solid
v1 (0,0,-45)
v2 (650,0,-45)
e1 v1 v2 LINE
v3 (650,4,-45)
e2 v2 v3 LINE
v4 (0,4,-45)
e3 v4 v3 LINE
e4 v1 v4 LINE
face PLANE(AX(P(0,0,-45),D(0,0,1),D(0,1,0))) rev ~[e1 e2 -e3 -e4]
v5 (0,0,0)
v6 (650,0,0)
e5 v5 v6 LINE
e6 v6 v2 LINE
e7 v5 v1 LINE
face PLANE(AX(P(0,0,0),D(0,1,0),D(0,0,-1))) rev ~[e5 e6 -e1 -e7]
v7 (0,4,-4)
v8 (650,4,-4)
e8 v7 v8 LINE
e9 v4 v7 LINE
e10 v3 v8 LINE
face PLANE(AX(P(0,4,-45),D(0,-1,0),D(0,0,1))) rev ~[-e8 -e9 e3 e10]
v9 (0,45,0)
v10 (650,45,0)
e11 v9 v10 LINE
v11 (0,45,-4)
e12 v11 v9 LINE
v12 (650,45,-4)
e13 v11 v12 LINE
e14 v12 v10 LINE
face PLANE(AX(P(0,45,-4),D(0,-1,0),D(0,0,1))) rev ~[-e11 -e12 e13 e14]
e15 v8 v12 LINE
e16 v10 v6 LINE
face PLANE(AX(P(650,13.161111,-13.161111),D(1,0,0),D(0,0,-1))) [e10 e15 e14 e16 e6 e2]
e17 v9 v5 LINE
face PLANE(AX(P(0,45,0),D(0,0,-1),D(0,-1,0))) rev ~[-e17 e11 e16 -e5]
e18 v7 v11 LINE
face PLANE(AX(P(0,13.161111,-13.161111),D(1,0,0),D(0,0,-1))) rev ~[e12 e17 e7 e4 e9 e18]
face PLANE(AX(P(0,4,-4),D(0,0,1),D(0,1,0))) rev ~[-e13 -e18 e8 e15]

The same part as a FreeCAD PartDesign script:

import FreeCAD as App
import Part
import Sketcher

V = App.Vector
Q = App.Units.Quantity


def add_polygon(sketch, points):
    """Adds a closed chain of lines whose ends are joined by coincident constraints."""
    first, n = sketch.GeometryCount, len(points)
    for a, b in zip(points, points[1:] + points[:1]):
        sketch.addGeometry(Part.LineSegment(App.Vector(*a, 0), App.Vector(*b, 0)), False)
    for i in range(n):
        sketch.addConstraint(Sketcher.Constraint("Coincident", first + i, 2, first + (i + 1) % n, 1))

doc = App.newDocument("Part")
params = doc.addObject("Spreadsheet::Sheet", "Params")
for row, (alias, value) in enumerate([
    ("sketch1_width", "45 mm"),
    ("sketch1_width2", "4 mm"),
    ("pad1_length", "650 mm"),
], start=1):
    params.set(f"A{row}", alias)
    params.set(f"B{row}", "=" + value)
    params.setAlias(f"B{row}", alias)

body = doc.addObject("PartDesign::Body", "Body")

# Sketch on YZ plane
sketch1 = body.newObject("Sketcher::SketchObject", "Sketch")
sketch1.AttachmentSupport = (doc.getObject("YZ_Plane"), [""])
sketch1.MapMode = "FlatFace"
add_polygon(sketch1, [(45, 0), (0, 0), (0, -45), (4, -45), (4, -4), (45, -4)])  # lines 0-5
sketch1.addConstraint([
    Sketcher.Constraint("Horizontal", 0),
    Sketcher.Constraint("Vertical", 1),
    Sketcher.Constraint("Horizontal", 2),
    Sketcher.Constraint("Vertical", 3),
    Sketcher.Constraint("Horizontal", 4),
    Sketcher.Constraint("Vertical", 5),
    Sketcher.Constraint("Coincident", 0, 2, -1, 1),
    Sketcher.Constraint("Equal", 0, 1),
    Sketcher.Constraint("Equal", 4, 3),
    Sketcher.Constraint("DistanceX", 0, 2, 0, 1, Q("45 mm")),
    Sketcher.Constraint("DistanceX", 2, 1, 2, 2, Q("4 mm")),
])
sketch1.setExpression("Constraints[15]", "Params.sketch1_width")
sketch1.setExpression("Constraints[16]", "Params.sketch1_width2")
pad1 = body.newObject("PartDesign::Pad", "Pad")
pad1.Profile = sketch1
pad1.setExpression("Length", "Params.pad1_length")

doc.recompute()
